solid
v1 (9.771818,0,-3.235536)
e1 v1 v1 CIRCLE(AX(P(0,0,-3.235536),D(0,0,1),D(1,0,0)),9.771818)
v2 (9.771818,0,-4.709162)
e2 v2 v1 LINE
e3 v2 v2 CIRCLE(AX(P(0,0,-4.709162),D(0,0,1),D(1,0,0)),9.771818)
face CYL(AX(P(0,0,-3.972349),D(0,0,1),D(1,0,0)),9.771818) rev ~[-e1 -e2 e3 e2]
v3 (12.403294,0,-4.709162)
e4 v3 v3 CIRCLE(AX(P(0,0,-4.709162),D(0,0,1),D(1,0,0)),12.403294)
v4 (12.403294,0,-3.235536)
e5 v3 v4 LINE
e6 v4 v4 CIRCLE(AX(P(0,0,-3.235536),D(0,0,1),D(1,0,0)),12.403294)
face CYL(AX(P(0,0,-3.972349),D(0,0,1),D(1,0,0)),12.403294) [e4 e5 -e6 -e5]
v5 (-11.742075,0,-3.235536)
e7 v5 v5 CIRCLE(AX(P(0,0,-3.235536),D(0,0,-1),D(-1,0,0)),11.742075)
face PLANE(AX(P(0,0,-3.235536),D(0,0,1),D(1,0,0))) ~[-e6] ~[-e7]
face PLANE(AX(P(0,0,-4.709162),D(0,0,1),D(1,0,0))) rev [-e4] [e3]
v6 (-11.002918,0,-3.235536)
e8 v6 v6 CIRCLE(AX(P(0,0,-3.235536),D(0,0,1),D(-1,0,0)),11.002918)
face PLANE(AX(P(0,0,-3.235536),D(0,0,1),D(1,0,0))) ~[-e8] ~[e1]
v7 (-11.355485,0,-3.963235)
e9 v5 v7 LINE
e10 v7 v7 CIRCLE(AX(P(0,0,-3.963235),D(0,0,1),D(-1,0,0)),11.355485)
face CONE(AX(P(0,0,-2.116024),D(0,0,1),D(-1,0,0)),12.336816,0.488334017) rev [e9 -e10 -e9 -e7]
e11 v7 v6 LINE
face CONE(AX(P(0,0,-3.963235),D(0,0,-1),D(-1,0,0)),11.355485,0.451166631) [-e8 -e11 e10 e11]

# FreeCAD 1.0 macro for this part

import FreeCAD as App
import Part
import Sketcher

V = App.Vector


def add_polygon(sketch, points):
    """Adds a closed chain of lines whose ends are joined by coincident constraints."""
    first, n = sketch.GeometryCount, len(points)
    for a, b in zip(points, points[1:] + points[:1]):
        sketch.addGeometry(Part.LineSegment(App.Vector(*a, 0), App.Vector(*b, 0)), False)
    for i in range(n):
        sketch.addConstraint(Sketcher.Constraint("Coincident", first + i, 2, first + (i + 1) % n, 1))

doc = App.newDocument("Part")
params = doc.addObject("Spreadsheet::Sheet", "Params")
for row, (alias, value) in enumerate([
    ("revolution_angle", "360 deg"),
    ("groove_angle", "360 deg"),
], start=1):
    params.set(f"A{row}", alias)
    params.set(f"B{row}", "=" + value)
    params.setAlias(f"B{row}", alias)

body = doc.addObject("PartDesign::Body", "Body")

sketch1 = body.newObject("Sketcher::SketchObject", "Sketch")
sketch1.AttachmentSupport = (doc.getObject("XZ_Plane"), [""])
sketch1.MapMode = "FlatFace"
add_polygon(sketch1, [(9.8, -3.2), (9.8, -4.7), (12.4, -4.7), (12.4, -3.2)])
sketch1.addConstraint([
    Sketcher.Constraint("Vertical", 0),
    Sketcher.Constraint("Horizontal", 1),
    Sketcher.Constraint("Vertical", 2),
    Sketcher.Constraint("Horizontal", 3),
    Sketcher.Constraint("DistanceX", 1, 1, 1, 2, 2.631476),
    Sketcher.Constraint("DistanceY", 0, 2, 0, 1, 1.473627),
    Sketcher.Constraint("DistanceX", -1, 1, 0, 2, 9.771818),
    Sketcher.Constraint("DistanceY", 0, 2, -1, 1, 4.709162),
])
revolution = body.newObject("PartDesign::Revolution", "Revolution")
revolution.Profile = sketch1
revolution.ReferenceAxis = (sketch1, ["V_Axis"])
revolution.setExpression("Angle", "Params.revolution_angle")

sketch2 = body.newObject("Sketcher::SketchObject", "Sketch001")
sketch2.AttachmentSupport = (doc.getObject("XZ_Plane"), [""])
sketch2.MapMode = "FlatFace"
add_polygon(sketch2, [(-10.5, -2.1), (-12.3, -2.1), (-11.4, -4)])
sketch2.addConstraint([
    Sketcher.Constraint("Horizontal", 0),
    Sketcher.Constraint("DistanceX", 0, 2, 0, 1, 1.876295),
    Sketcher.Constraint("DistanceX", 2, 2, -1, 1, 10.460521),
    Sketcher.Constraint("DistanceX", 0, 2, 1, 2, 0.981331),
    Sketcher.Constraint("DistanceY", 1, 2, 0, 2, 1.847211),
    Sketcher.Constraint("DistanceY", 0, 2, -1, 1, 2.116024),
])
groove = body.newObject("PartDesign::Groove", "Groove")
groove.Profile = sketch2
groove.ReferenceAxis = (sketch2, ["V_Axis"])
groove.setExpression("Angle", "Params.groove_angle")

doc.recompute()
